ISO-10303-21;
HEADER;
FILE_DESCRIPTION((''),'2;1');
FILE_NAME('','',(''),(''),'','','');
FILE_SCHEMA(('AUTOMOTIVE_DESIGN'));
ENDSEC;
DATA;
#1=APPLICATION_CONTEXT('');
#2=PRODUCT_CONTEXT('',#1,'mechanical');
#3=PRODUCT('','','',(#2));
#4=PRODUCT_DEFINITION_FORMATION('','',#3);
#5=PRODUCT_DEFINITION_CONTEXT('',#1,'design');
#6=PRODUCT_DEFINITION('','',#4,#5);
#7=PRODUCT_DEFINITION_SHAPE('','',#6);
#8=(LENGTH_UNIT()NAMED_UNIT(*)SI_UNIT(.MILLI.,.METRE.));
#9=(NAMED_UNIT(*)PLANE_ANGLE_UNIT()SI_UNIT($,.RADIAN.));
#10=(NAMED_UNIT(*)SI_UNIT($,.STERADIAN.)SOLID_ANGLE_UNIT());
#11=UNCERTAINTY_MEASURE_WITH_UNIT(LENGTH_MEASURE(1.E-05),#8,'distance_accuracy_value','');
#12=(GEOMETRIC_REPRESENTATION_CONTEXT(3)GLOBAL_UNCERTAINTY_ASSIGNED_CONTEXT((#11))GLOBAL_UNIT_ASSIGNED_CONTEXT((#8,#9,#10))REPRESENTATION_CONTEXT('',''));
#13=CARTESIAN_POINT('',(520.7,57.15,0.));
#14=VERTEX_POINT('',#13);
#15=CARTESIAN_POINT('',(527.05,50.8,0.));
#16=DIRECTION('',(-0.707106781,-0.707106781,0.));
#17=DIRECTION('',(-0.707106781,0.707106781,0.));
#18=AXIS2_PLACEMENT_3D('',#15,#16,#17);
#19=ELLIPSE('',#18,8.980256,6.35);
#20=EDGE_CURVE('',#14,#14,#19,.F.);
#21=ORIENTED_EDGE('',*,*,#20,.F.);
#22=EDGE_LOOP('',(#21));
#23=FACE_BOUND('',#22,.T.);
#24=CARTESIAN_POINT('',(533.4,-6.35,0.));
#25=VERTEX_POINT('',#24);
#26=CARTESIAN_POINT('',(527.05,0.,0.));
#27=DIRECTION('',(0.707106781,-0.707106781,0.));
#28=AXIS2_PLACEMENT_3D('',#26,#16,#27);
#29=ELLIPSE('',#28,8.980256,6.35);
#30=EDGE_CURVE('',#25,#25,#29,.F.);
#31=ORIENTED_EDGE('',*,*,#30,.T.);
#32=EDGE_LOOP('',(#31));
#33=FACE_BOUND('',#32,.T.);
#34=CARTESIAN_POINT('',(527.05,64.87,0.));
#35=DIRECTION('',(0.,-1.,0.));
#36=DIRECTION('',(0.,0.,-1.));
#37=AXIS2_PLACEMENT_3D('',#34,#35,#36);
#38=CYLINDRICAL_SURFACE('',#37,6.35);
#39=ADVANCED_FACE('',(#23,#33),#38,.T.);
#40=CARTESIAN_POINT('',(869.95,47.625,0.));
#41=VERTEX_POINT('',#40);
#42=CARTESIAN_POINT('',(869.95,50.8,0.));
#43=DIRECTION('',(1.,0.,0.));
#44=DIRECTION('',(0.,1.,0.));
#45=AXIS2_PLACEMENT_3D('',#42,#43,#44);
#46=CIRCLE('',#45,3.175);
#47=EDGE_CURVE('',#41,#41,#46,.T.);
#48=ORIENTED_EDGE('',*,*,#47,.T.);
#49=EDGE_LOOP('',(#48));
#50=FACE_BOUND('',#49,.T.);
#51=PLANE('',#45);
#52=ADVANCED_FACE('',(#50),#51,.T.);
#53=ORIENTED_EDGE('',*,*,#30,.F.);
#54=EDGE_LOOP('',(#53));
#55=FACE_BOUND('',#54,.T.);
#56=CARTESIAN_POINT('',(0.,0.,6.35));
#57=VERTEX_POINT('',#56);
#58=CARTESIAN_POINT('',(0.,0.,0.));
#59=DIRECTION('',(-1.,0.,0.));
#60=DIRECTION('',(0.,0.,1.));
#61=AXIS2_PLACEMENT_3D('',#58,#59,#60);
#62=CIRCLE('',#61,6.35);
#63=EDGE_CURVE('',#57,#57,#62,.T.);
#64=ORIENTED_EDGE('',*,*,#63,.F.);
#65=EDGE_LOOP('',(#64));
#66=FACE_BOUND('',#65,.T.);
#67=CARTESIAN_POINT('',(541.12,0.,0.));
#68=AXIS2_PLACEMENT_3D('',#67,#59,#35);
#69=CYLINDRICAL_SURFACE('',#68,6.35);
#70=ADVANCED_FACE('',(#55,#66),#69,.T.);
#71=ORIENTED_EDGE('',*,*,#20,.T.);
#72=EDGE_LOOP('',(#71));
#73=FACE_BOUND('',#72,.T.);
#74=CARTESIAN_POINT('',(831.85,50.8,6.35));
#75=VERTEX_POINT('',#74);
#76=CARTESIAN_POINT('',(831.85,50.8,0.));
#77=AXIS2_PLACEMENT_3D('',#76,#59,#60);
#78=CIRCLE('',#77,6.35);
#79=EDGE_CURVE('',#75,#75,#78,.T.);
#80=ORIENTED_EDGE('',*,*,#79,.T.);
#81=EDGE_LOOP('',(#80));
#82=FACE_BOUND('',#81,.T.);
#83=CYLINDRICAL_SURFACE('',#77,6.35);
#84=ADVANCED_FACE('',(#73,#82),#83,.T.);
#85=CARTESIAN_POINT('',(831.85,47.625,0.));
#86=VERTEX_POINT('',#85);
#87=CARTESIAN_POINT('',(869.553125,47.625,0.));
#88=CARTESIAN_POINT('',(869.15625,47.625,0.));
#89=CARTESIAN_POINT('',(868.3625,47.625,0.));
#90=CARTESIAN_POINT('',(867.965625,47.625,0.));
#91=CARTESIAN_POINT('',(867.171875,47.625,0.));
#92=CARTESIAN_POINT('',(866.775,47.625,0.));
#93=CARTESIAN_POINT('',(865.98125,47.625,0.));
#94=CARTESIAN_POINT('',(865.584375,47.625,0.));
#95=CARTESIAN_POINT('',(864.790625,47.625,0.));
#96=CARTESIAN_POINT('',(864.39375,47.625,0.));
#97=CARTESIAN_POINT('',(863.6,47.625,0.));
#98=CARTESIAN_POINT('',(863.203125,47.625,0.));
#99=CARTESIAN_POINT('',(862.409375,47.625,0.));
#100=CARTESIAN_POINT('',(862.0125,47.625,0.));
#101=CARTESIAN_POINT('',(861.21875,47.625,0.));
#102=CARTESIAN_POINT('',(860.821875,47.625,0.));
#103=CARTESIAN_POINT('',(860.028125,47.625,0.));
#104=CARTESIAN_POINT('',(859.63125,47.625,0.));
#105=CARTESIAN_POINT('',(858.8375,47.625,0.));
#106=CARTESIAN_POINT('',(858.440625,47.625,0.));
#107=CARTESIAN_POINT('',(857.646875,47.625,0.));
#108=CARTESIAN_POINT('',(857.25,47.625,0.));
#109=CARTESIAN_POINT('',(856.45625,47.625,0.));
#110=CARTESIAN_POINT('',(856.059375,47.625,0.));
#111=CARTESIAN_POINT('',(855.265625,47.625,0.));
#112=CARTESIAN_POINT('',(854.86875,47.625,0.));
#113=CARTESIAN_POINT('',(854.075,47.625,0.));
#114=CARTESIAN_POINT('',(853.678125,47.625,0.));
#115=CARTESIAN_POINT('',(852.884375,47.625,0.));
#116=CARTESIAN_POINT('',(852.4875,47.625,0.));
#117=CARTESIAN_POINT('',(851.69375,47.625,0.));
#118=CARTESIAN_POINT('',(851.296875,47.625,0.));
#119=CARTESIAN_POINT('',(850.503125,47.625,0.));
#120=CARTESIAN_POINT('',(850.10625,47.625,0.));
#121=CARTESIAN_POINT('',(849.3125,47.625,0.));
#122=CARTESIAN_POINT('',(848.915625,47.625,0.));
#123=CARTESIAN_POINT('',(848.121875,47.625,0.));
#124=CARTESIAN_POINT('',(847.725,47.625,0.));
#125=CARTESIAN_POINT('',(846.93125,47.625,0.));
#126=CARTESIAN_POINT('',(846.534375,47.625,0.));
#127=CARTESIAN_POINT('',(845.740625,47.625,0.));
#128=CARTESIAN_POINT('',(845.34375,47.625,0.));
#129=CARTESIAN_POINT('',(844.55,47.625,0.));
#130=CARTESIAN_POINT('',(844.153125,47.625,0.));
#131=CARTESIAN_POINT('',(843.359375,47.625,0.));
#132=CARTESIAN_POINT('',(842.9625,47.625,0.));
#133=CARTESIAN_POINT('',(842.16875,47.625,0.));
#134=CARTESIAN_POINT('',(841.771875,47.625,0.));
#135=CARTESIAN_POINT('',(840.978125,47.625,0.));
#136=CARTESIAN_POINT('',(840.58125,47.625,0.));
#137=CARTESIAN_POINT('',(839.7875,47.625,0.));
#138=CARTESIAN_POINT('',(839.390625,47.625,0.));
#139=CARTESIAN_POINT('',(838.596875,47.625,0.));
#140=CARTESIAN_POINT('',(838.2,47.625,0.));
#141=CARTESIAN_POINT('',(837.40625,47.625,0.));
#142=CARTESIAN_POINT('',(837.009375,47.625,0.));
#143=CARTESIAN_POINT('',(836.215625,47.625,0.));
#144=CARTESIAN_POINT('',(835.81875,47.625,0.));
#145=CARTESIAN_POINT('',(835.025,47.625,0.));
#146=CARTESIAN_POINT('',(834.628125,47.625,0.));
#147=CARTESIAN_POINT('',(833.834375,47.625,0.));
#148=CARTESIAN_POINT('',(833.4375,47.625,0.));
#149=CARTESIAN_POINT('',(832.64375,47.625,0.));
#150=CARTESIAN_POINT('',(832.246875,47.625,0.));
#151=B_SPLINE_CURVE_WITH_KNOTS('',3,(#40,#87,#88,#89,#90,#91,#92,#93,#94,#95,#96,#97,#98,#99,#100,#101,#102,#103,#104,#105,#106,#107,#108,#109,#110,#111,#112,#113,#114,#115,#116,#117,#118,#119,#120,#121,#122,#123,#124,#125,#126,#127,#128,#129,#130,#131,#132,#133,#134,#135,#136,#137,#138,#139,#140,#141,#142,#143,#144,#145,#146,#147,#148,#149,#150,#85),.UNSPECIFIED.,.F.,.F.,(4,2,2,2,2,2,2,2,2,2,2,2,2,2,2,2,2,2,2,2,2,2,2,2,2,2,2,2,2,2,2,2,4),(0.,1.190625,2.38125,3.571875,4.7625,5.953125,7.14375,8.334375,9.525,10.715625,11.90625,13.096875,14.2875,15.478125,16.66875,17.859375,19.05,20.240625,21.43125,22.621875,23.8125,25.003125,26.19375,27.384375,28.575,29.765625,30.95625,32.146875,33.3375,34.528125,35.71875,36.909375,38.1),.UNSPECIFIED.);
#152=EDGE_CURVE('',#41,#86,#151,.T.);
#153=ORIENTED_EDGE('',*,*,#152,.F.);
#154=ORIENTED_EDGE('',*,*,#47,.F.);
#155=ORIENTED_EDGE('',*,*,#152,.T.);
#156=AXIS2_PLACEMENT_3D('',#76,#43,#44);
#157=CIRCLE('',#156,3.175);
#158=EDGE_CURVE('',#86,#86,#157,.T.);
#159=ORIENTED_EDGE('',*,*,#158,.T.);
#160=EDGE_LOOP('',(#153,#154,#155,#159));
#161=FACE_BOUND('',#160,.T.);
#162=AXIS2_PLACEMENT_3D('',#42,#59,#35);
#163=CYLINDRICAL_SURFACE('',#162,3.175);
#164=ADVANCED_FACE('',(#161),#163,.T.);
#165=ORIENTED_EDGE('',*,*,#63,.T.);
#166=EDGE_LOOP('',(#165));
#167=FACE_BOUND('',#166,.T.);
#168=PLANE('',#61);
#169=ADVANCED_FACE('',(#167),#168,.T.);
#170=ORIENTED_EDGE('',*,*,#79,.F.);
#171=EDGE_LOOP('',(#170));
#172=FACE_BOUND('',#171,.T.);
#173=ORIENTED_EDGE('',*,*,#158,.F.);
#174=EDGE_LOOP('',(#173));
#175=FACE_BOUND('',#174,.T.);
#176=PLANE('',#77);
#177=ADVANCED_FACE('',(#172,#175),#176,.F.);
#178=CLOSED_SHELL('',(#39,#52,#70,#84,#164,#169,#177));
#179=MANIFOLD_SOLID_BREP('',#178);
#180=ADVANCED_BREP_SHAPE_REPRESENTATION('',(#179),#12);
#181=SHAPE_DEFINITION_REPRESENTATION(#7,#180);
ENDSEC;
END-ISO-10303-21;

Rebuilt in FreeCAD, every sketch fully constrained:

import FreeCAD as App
import Part
import Sketcher
Q = App.Units.Quantity

doc = App.newDocument("Part")
body = doc.addObject("PartDesign::Body", "Body")

# Sketch on YZ plane
sketch1 = body.newObject("Sketcher::SketchObject", "Sketch")
sketch1.AttachmentSupport = (doc.getObject("YZ_Plane"), [""])
sketch1.MapMode = "FlatFace"
sketch1.addGeometry(Part.Circle(App.Vector(0, 0, 0), App.Vector(0, 0, 1), 6), False)
sketch1.addConstraint([
    Sketcher.Constraint("Coincident", 0, 3, -1, 1),
    Sketcher.Constraint("Diameter", 0, Q("0.5 in")),
])

# Sketch on XY plane
sketch2 = body.newObject("Sketcher::SketchObject", "Sketch001")
sketch2.AttachmentSupport = (doc.getObject("XY_Plane"), [""])
sketch2.MapMode = "FlatFace"
sketch2.addGeometry([
    Part.LineSegment(App.Vector(0, 0, 0), App.Vector(527, 0, 0)),
    Part.LineSegment(App.Vector(527, 0, 0), App.Vector(527, 51, 0)),
    Part.LineSegment(App.Vector(527, 51, 0), App.Vector(832, 51, 0)),
], False)
sketch2.addConstraint([
    Sketcher.Constraint("Coincident", 0, 2, 1, 1),
    Sketcher.Constraint("Coincident", 1, 2, 2, 1),
    Sketcher.Constraint("Horizontal", 0),
    Sketcher.Constraint("Vertical", 1),
    Sketcher.Constraint("Horizontal", 2),
    Sketcher.Constraint("Coincident", 0, 1, -1, 1),
    Sketcher.Constraint("DistanceX", 2, 1, 2, 2, Q("12 in")),
    Sketcher.Constraint("DistanceY", 1, 1, 1, 2, Q("2 in")),
    Sketcher.Constraint("DistanceX", 0, 1, 0, 2, Q("20.75 in")),
])
doc.recompute()

additivepipe = body.newObject("PartDesign::AdditivePipe", "AdditivePipe")
additivepipe.Profile = sketch1
additivepipe.Spine = (sketch2, ["Edge1", "Edge2", "Edge3"])
additivepipe.Transition = "Right corner"

# Sketch on YZ plane
sketch3 = body.newObject("Sketcher::SketchObject", "Sketch002")
sketch3.AttachmentSupport = (doc.getObject("YZ_Plane"), [""])
sketch3.MapMode = "FlatFace"
sketch3.AttachmentOffset = App.Placement(App.Vector(0, 0, 32.75 * 25.4), App.Rotation())
sketch3.addGeometry(Part.Circle(App.Vector(50.8, 0, 0), App.Vector(0, 0, 1), 3.2), False)
sketch3.addConstraint([
    Sketcher.Constraint("PointOnObject", 0, 3, -1),
    Sketcher.Constraint("Diameter", 0, Q("0.25 in")),
    Sketcher.Constraint("DistanceX", -1, 1, 0, 3, Q("2 in")),
])
pad1 = body.newObject("PartDesign::Pad", "Pad")
pad1.Profile = sketch3
pad1.Length = Q("1.5 in")

doc.recompute()
